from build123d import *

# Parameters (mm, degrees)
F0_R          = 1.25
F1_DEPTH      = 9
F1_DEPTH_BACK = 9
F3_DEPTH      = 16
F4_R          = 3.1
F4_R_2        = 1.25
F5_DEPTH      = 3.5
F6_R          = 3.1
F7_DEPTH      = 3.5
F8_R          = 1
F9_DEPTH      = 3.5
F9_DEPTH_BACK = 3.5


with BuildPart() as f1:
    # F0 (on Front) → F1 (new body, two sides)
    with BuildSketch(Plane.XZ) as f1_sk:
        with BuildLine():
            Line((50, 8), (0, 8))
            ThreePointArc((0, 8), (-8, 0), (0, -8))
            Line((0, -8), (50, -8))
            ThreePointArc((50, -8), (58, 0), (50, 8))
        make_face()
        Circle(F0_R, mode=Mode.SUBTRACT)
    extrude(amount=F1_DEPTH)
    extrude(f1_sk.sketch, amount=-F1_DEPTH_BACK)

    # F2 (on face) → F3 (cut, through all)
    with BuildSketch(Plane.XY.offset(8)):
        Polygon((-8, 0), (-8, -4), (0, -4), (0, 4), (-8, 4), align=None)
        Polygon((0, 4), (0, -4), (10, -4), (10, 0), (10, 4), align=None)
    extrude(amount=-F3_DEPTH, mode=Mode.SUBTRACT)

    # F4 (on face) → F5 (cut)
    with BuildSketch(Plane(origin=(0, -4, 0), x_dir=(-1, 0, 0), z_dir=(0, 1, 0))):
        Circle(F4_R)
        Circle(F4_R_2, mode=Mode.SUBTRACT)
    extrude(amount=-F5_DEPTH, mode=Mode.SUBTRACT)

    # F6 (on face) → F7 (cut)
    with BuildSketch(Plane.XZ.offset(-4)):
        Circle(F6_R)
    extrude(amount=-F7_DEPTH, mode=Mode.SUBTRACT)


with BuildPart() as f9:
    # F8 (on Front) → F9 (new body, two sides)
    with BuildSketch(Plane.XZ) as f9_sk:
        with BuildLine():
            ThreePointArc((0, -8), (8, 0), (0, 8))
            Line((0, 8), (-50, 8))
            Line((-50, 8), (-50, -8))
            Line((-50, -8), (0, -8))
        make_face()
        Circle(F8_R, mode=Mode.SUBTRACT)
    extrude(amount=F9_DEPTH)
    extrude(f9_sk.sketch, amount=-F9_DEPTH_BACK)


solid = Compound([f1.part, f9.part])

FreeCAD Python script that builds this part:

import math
import FreeCAD as App
import Part
import Sketcher
Q = App.Units.Quantity

doc = App.newDocument("Part")
body = doc.addObject("PartDesign::Body", "Body")

# Sketch on XZ plane
sketch1 = doc.addObject("Sketcher::SketchObject", "Sketch")
body.addObject(sketch1)
sketch1.AttachmentSupport = (doc.XZ_Plane, [""])
sketch1.MapMode = "FlatFace"
sketch1.addGeometry([
    Part.LineSegment(App.Vector(50, 8, 0), App.Vector(0, 8, 0)),  # 0
    Part.ArcOfCircle(Part.Circle(App.Vector(0, 0, 0), App.Vector(0, 0, 1), 8), math.radians(90), math.radians(270)),  # 1
    Part.LineSegment(App.Vector(0, -8, 0), App.Vector(50, -8, 0)),  # 2
    Part.ArcOfCircle(Part.Circle(App.Vector(50, 0, 0), App.Vector(0, 0, 1), 8), math.radians(-90), math.radians(90)),  # 3
    Part.Circle(App.Vector(0, 0, 0), App.Vector(0, 0, 1), 1.2),  # 4
], False)
sketch1.addConstraint([
    Sketcher.Constraint("Tangent", 0, 2, 1, 1),
    Sketcher.Constraint("Tangent", 1, 2, 2, 1),
    Sketcher.Constraint("Tangent", 2, 2, 3, 1),
    Sketcher.Constraint("Tangent", 3, 2, 0, 1),
    Sketcher.Constraint("Horizontal", 0),
    Sketcher.Constraint("Horizontal", 2),
    Sketcher.Constraint("Coincident", 1, 3, -1, 1),
    Sketcher.Constraint("Coincident", 4, 3, -1, 1),
    Sketcher.Constraint("Radius", 1, Q("8 mm")),
    Sketcher.Constraint("Diameter", 4, Q("2.5 mm")),
    Sketcher.Constraint("DistanceX", 0, 2, 0, 1, Q("50 mm")),
])
pad1 = doc.addObject("PartDesign::Pad", "Pad")
body.addObject(pad1)
pad1.Profile = sketch1
pad1.Type = "TwoLengths"
pad1.Length = 9
pad1.Length2 = 9

# Sketch on XY plane
sketch2 = doc.addObject("Sketcher::SketchObject", "Sketch001")
body.addObject(sketch2)
sketch2.AttachmentSupport = (doc.XY_Plane, [""])
sketch2.MapMode = "FlatFace"
sketch2.AttachmentOffset = App.Placement(App.Vector(0, 0, 8), App.Rotation())
sketch2.addGeometry([
    Part.LineSegment(App.Vector(-8, -4, 0), App.Vector(10, -4, 0)),
    Part.LineSegment(App.Vector(10, -4, 0), App.Vector(10, 4, 0)),
    Part.LineSegment(App.Vector(10, 4, 0), App.Vector(-8, 4, 0)),
    Part.LineSegment(App.Vector(-8, 4, 0), App.Vector(-8, -4, 0)),
], False)
sketch2.addConstraint([
    Sketcher.Constraint("Coincident", 0, 2, 1, 1),
    Sketcher.Constraint("Coincident", 1, 2, 2, 1),
    Sketcher.Constraint("Coincident", 2, 2, 3, 1),
    Sketcher.Constraint("Coincident", 3, 2, 0, 1),
    Sketcher.Constraint("Horizontal", 0),
    Sketcher.Constraint("Vertical", 1),
    Sketcher.Constraint("Horizontal", 2),
    Sketcher.Constraint("Vertical", 3),
    Sketcher.Constraint("DistanceX", 0, 1, 0, 2, Q("18 mm")),
    Sketcher.Constraint("DistanceY", 1, 1, 1, 2, Q("8 mm")),
    Sketcher.Constraint("DistanceX", -1, 1, 0, 2, Q("10 mm")),
    Sketcher.Constraint("DistanceY", 0, 2, -1, 1, Q("4 mm")),
])
pocket1 = doc.addObject("PartDesign::Pocket", "Pocket")
body.addObject(pocket1)
pocket1.Profile = sketch2
pocket1.Type = "ThroughAll"

# Sketch on XZ plane
sketch3 = doc.addObject("Sketcher::SketchObject", "Sketch002")
body.addObject(sketch3)
sketch3.AttachmentSupport = (doc.XZ_Plane, [""])
sketch3.MapMode = "FlatFace"
sketch3.AttachmentOffset = App.Placement(App.Vector(0, 0, 4), App.Rotation())
sketch3.addGeometry([
    Part.Circle(App.Vector(0, 0, 0), App.Vector(0, 0, 1), 3.1),
    Part.Circle(App.Vector(0, 0, 0), App.Vector(0, 0, 1), 1.2),
], False)
sketch3.addConstraint([
    Sketcher.Constraint("Coincident", 0, 3, -1, 1),
    Sketcher.Constraint("Coincident", 1, 3, -1, 1),
    Sketcher.Constraint("Diameter", 0, Q("6.2 mm")),
    Sketcher.Constraint("Diameter", 1, Q("2.5 mm")),
])
pocket2 = doc.addObject("PartDesign::Pocket", "Pocket001")
body.addObject(pocket2)
pocket2.Profile = sketch3
pocket2.Length = 3.5
pocket2.Reversed = True

# Sketch on XZ plane
sketch4 = doc.addObject("Sketcher::SketchObject", "Sketch003")
body.addObject(sketch4)
sketch4.AttachmentSupport = (doc.XZ_Plane, [""])
sketch4.MapMode = "FlatFace"
sketch4.AttachmentOffset = App.Placement(App.Vector(0, 0, -4), App.Rotation())
sketch4.addGeometry(Part.Circle(App.Vector(0, 0, 0), App.Vector(0, 0, 1), 3.1), False)
sketch4.addConstraint([
    Sketcher.Constraint("Coincident", 0, 3, -1, 1),
    Sketcher.Constraint("Diameter", 0, Q("6.2 mm")),
])
pocket3 = doc.addObject("PartDesign::Pocket", "Pocket002")
body.addObject(pocket3)
pocket3.Profile = sketch4
pocket3.Length = 3.5
body2 = doc.addObject("PartDesign::Body", "Body001")

# Sketch on XZ plane
sketch5 = doc.addObject("Sketcher::SketchObject", "Sketch004")
body2.addObject(sketch5)
sketch5.AttachmentSupport = (doc.getObject("XZ_Plane001"), [""])
sketch5.MapMode = "FlatFace"
sketch5.addGeometry([
    Part.ArcOfCircle(Part.Circle(App.Vector(0, 0, 0), App.Vector(0, 0, 1), 8), math.radians(-90), math.radians(90)),  # 0
    Part.LineSegment(App.Vector(0, 8, 0), App.Vector(-50, 8, 0)),  # 1
    Part.LineSegment(App.Vector(-50, 8, 0), App.Vector(-50, -8, 0)),  # 2
    Part.LineSegment(App.Vector(-50, -8, 0), App.Vector(0, -8, 0)),  # 3
    Part.Circle(App.Vector(0, 0, 0), App.Vector(0, 0, 1), 1),  # 4
], False)
sketch5.addConstraint([
    Sketcher.Constraint("Tangent", 0, 2, 1, 1),
    Sketcher.Constraint("Coincident", 1, 2, 2, 1),
    Sketcher.Constraint("Coincident", 2, 2, 3, 1),
    Sketcher.Constraint("Tangent", 3, 2, 0, 1),
    Sketcher.Constraint("Horizontal", 1),
    Sketcher.Constraint("Vertical", 2),
    Sketcher.Constraint("Horizontal", 3),
    Sketcher.Constraint("Coincident", 0, 3, -1, 1),
    Sketcher.Constraint("Coincident", 4, 3, -1, 1),
    Sketcher.Constraint("Diameter", 4, Q("2 mm")),
    Sketcher.Constraint("Radius", 0, Q("8 mm")),
    Sketcher.Constraint("DistanceX", 1, 2, 1, 1, Q("50 mm")),
])
pad2 = doc.addObject("PartDesign::Pad", "Pad001")
body2.addObject(pad2)
pad2.Profile = sketch5
pad2.Type = "TwoLengths"
pad2.Length = 3.5
pad2.Length2 = 3.5

doc.recompute()
